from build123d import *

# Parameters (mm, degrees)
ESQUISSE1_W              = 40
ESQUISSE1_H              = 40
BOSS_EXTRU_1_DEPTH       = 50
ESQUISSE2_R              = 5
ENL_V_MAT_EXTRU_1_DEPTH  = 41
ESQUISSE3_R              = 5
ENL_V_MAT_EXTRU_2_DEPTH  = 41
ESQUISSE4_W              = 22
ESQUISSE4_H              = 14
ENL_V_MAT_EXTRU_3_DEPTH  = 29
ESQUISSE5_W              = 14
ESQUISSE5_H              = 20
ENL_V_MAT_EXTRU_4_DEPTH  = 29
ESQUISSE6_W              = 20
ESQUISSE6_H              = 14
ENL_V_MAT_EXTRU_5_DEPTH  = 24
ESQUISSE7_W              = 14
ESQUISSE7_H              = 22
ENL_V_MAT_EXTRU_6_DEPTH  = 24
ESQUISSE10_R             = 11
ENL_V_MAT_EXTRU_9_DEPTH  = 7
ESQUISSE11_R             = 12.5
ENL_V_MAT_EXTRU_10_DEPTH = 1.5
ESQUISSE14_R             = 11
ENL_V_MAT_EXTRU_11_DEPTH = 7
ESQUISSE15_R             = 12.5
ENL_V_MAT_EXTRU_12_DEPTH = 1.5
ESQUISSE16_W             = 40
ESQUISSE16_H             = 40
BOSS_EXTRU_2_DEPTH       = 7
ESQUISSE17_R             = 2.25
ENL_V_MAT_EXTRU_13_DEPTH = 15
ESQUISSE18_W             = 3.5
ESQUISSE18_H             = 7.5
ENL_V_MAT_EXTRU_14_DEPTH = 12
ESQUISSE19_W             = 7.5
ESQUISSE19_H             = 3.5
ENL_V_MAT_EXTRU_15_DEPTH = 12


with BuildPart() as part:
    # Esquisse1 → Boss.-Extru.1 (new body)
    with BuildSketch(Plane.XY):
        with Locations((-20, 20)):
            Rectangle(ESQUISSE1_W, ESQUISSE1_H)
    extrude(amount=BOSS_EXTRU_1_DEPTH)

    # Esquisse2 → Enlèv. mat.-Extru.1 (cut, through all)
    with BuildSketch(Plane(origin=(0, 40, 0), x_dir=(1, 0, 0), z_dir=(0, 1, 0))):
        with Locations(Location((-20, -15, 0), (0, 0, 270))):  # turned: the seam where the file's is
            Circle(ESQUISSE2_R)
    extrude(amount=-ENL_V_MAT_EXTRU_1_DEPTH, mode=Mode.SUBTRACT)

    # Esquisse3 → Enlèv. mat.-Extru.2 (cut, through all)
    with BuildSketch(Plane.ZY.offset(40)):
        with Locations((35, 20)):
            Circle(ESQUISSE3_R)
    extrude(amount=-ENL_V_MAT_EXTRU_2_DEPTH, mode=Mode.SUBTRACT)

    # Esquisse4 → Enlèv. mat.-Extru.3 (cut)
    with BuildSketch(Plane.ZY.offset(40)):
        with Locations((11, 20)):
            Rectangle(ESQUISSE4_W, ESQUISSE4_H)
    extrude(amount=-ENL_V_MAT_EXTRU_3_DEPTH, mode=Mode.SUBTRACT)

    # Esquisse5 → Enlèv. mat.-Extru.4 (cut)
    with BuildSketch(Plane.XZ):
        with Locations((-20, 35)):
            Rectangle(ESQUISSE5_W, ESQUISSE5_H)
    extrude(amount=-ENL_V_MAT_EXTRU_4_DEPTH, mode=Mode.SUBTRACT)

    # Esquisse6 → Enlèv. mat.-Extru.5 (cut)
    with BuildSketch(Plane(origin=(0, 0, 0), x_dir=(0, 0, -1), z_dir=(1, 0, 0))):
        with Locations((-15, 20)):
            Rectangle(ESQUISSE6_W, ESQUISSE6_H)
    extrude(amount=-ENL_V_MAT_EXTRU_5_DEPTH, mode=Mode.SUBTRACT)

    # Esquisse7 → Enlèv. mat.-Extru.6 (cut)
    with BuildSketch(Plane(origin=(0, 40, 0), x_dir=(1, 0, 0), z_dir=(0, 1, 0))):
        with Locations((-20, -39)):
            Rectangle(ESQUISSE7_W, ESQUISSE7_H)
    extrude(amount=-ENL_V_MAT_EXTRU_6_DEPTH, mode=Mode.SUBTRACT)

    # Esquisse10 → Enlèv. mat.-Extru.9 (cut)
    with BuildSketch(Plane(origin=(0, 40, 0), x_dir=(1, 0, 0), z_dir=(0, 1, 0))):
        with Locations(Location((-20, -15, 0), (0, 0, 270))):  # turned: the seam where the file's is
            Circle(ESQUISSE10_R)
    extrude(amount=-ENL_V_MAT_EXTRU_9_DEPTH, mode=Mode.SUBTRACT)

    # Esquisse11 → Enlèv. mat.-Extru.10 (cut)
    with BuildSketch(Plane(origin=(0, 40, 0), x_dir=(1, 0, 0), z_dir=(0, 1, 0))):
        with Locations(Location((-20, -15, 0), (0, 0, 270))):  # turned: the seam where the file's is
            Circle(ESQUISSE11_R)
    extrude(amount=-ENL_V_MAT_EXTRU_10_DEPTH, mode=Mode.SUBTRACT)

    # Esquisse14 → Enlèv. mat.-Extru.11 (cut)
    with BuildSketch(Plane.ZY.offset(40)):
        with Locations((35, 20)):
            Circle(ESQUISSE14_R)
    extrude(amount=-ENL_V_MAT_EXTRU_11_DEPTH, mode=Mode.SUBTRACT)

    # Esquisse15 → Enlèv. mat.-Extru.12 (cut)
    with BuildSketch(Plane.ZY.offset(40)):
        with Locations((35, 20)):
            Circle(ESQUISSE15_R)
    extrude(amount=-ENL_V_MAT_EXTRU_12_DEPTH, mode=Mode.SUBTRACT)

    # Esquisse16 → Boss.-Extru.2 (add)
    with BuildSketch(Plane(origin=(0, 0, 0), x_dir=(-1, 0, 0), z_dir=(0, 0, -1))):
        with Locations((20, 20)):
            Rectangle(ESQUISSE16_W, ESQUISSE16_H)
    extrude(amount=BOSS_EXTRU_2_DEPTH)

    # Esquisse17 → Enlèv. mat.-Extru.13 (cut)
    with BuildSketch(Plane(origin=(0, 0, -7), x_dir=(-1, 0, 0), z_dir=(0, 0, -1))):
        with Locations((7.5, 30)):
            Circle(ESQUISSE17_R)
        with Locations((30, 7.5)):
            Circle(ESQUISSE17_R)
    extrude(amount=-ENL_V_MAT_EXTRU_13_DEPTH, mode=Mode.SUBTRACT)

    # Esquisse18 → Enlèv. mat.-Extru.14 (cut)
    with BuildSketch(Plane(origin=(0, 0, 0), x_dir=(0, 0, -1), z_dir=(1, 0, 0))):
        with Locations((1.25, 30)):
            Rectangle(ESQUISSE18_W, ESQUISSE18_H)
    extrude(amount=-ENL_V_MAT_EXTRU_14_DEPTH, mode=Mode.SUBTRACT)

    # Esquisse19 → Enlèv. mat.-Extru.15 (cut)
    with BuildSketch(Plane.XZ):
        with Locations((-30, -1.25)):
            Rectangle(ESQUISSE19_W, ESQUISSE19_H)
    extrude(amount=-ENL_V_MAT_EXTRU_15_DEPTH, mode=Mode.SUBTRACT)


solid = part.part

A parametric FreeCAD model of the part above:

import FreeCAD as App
import Part
import Sketcher

V = App.Vector
Q = App.Units.Quantity

doc = App.newDocument("Part")
body = doc.addObject("PartDesign::Body", "Body")

# Sketch on XY plane
sketch1 = doc.addObject("Sketcher::SketchObject", "Sketch")
body.addObject(sketch1)
sketch1.AttachmentSupport = (doc.XY_Plane, [""])
sketch1.MapMode = "FlatFace"
sketch1.addGeometry(Part.LineSegment(V(-40, 40, 0), V(-40, 0, 0)), False)
sketch1.addGeometry(Part.LineSegment(V(-40, 0, 0), V(0, 0, 0)), False)
sketch1.addGeometry(Part.LineSegment(V(0, 0, 0), V(0, 40, 0)), False)
sketch1.addGeometry(Part.LineSegment(V(0, 40, 0), V(-40, 40, 0)), False)
sketch1.addConstraint(Sketcher.Constraint("Coincident", 0, 2, 1, 1))
sketch1.addConstraint(Sketcher.Constraint("Coincident", 1, 2, 2, 1))
sketch1.addConstraint(Sketcher.Constraint("Coincident", 2, 2, 3, 1))
sketch1.addConstraint(Sketcher.Constraint("Coincident", 3, 2, 0, 1))
sketch1.addConstraint(Sketcher.Constraint("Vertical", 0))
sketch1.addConstraint(Sketcher.Constraint("Horizontal", 1))
sketch1.addConstraint(Sketcher.Constraint("Vertical", 2))
sketch1.addConstraint(Sketcher.Constraint("Horizontal", 3))
sketch1.addConstraint(Sketcher.Constraint("Coincident", 1, 2, -1, 1))
sketch1.addConstraint(Sketcher.Constraint("Equal", 3, 0))
sketch1.addConstraint(Sketcher.Constraint("DistanceX", 1, 1, 1, 2, Q("40 mm")))
pad1 = doc.addObject("PartDesign::Pad", "Pad")
body.addObject(pad1)
pad1.Profile = sketch1
pad1.Length = 50

# Sketch on XZ plane
sketch2 = doc.addObject("Sketcher::SketchObject", "Sketch001")
body.addObject(sketch2)
sketch2.AttachmentSupport = (doc.XZ_Plane, [""])
sketch2.MapMode = "FlatFace"
sketch2.AttachmentOffset = App.Placement(V(0, 0, -40), App.Rotation())
sketch2.addGeometry(Part.Circle(V(-20, 15, 0), V(0, 0, 1), 5), False)
sketch2.addConstraint(Sketcher.Constraint("Diameter", 0, Q("10 mm")))
sketch2.addConstraint(Sketcher.Constraint("DistanceX", 0, 3, -1, 1, Q("20 mm")))
sketch2.addConstraint(Sketcher.Constraint("DistanceY", -1, 1, 0, 3, Q("15 mm")))
pocket1 = doc.addObject("PartDesign::Pocket", "Pocket")
body.addObject(pocket1)
pocket1.Profile = sketch2
pocket1.Type = "ThroughAll"
pocket1.Reversed = True

# Sketch on YZ plane
sketch3 = doc.addObject("Sketcher::SketchObject", "Sketch002")
body.addObject(sketch3)
sketch3.AttachmentSupport = (doc.YZ_Plane, [""])
sketch3.MapMode = "FlatFace"
sketch3.AttachmentOffset = App.Placement(V(0, 0, -40), App.Rotation())
sketch3.addGeometry(Part.Circle(V(20, 35, 0), V(0, 0, 1), 5), False)
sketch3.addConstraint(Sketcher.Constraint("Diameter", 0, Q("10 mm")))
sketch3.addConstraint(Sketcher.Constraint("DistanceX", -1, 1, 0, 3, Q("20 mm")))
sketch3.addConstraint(Sketcher.Constraint("DistanceY", -1, 1, 0, 3, Q("35 mm")))
pocket2 = doc.addObject("PartDesign::Pocket", "Pocket001")
body.addObject(pocket2)
pocket2.Profile = sketch3
pocket2.Type = "ThroughAll"
pocket2.Reversed = True

# Sketch on YZ plane
sketch4 = doc.addObject("Sketcher::SketchObject", "Sketch003")
body.addObject(sketch4)
sketch4.AttachmentSupport = (doc.YZ_Plane, [""])
sketch4.MapMode = "FlatFace"
sketch4.AttachmentOffset = App.Placement(V(0, 0, -40), App.Rotation())
sketch4.addGeometry(Part.LineSegment(V(27, 0, 0), V(13, 0, 0)), False)
sketch4.addGeometry(Part.LineSegment(V(13, 0, 0), V(13, 22, 0)), False)
sketch4.addGeometry(Part.LineSegment(V(13, 22, 0), V(27, 22, 0)), False)
sketch4.addGeometry(Part.LineSegment(V(27, 22, 0), V(27, 0, 0)), False)
sketch4.addConstraint(Sketcher.Constraint("Coincident", 0, 2, 1, 1))
sketch4.addConstraint(Sketcher.Constraint("Coincident", 1, 2, 2, 1))
sketch4.addConstraint(Sketcher.Constraint("Coincident", 2, 2, 3, 1))
sketch4.addConstraint(Sketcher.Constraint("Coincident", 3, 2, 0, 1))
sketch4.addConstraint(Sketcher.Constraint("Horizontal", 0))
sketch4.addConstraint(Sketcher.Constraint("Vertical", 1))
sketch4.addConstraint(Sketcher.Constraint("Horizontal", 2))
sketch4.addConstraint(Sketcher.Constraint("Vertical", 3))
sketch4.addConstraint(Sketcher.Constraint("PointOnObject", 0, 2, -1))
sketch4.addConstraint(Sketcher.Constraint("DistanceX", 0, 2, 0, 1, Q("14 mm")))
sketch4.addConstraint(Sketcher.Constraint("DistanceY", 1, 1, 1, 2, Q("22 mm")))
sketch4.addConstraint(Sketcher.Constraint("DistanceX", -1, 1, 0, 2, Q("13 mm")))
pocket3 = doc.addObject("PartDesign::Pocket", "Pocket002")
body.addObject(pocket3)
pocket3.Profile = sketch4
pocket3.Length = 29
pocket3.Reversed = True

# Sketch on XZ plane
sketch5 = doc.addObject("Sketcher::SketchObject", "Sketch004")
body.addObject(sketch5)
sketch5.AttachmentSupport = (doc.XZ_Plane, [""])
sketch5.MapMode = "FlatFace"
sketch5.addGeometry(Part.LineSegment(V(-27, 45, 0), V(-27, 25, 0)), False)
sketch5.addGeometry(Part.LineSegment(V(-27, 25, 0), V(-13, 25, 0)), False)
sketch5.addGeometry(Part.LineSegment(V(-13, 25, 0), V(-13, 45, 0)), False)
sketch5.addGeometry(Part.LineSegment(V(-13, 45, 0), V(-27, 45, 0)), False)
sketch5.addConstraint(Sketcher.Constraint("Coincident", 0, 2, 1, 1))
sketch5.addConstraint(Sketcher.Constraint("Coincident", 1, 2, 2, 1))
sketch5.addConstraint(Sketcher.Constraint("Coincident", 2, 2, 3, 1))
sketch5.addConstraint(Sketcher.Constraint("Coincident", 3, 2, 0, 1))
sketch5.addConstraint(Sketcher.Constraint("Vertical", 0))
sketch5.addConstraint(Sketcher.Constraint("Horizontal", 1))
sketch5.addConstraint(Sketcher.Constraint("Vertical", 2))
sketch5.addConstraint(Sketcher.Constraint("Horizontal", 3))
sketch5.addConstraint(Sketcher.Constraint("DistanceX", 1, 1, 1, 2, Q("14 mm")))
sketch5.addConstraint(Sketcher.Constraint("DistanceY", 0, 2, 0, 1, Q("20 mm")))
sketch5.addConstraint(Sketcher.Constraint("DistanceX", 0, 2, -1, 1, Q("27 mm")))
sketch5.addConstraint(Sketcher.Constraint("DistanceY", -1, 1, 0, 2, Q("25 mm")))
pocket4 = doc.addObject("PartDesign::Pocket", "Pocket003")
body.addObject(pocket4)
pocket4.Profile = sketch5
pocket4.Length = 29

# Sketch on YZ plane
sketch6 = doc.addObject("Sketcher::SketchObject", "Sketch005")
body.addObject(sketch6)
sketch6.AttachmentSupport = (doc.YZ_Plane, [""])
sketch6.MapMode = "FlatFace"
sketch6.addGeometry(Part.LineSegment(V(27, 25, 0), V(13, 25, 0)), False)
sketch6.addGeometry(Part.LineSegment(V(13, 25, 0), V(13, 5, 0)), False)
sketch6.addGeometry(Part.LineSegment(V(13, 5, 0), V(27, 5, 0)), False)
sketch6.addGeometry(Part.LineSegment(V(27, 5, 0), V(27, 25, 0)), False)
sketch6.addConstraint(Sketcher.Constraint("Coincident", 0, 2, 1, 1))
sketch6.addConstraint(Sketcher.Constraint("Coincident", 1, 2, 2, 1))
sketch6.addConstraint(Sketcher.Constraint("Coincident", 2, 2, 3, 1))
sketch6.addConstraint(Sketcher.Constraint("Coincident", 3, 2, 0, 1))
sketch6.addConstraint(Sketcher.Constraint("Horizontal", 0))
sketch6.addConstraint(Sketcher.Constraint("Vertical", 1))
sketch6.addConstraint(Sketcher.Constraint("Horizontal", 2))
sketch6.addConstraint(Sketcher.Constraint("Vertical", 3))
sketch6.addConstraint(Sketcher.Constraint("DistanceX", 0, 2, 0, 1, Q("14 mm")))
sketch6.addConstraint(Sketcher.Constraint("DistanceY", 1, 2, 1, 1, Q("20 mm")))
sketch6.addConstraint(Sketcher.Constraint("DistanceX", -1, 1, 0, 2, Q("13 mm")))
sketch6.addConstraint(Sketcher.Constraint("DistanceY", -1, 1, 0, 2, Q("25 mm")))
pocket5 = doc.addObject("PartDesign::Pocket", "Pocket004")
body.addObject(pocket5)
pocket5.Profile = sketch6
pocket5.Length = 24

# Sketch on XZ plane
sketch7 = doc.addObject("Sketcher::SketchObject", "Sketch006")
body.addObject(sketch7)
sketch7.AttachmentSupport = (doc.XZ_Plane, [""])
sketch7.MapMode = "FlatFace"
sketch7.AttachmentOffset = App.Placement(V(0, 0, -40), App.Rotation())
sketch7.addGeometry(Part.LineSegment(V(-27, 28, 0), V(-27, 50, 0)), False)
sketch7.addGeometry(Part.LineSegment(V(-27, 50, 0), V(-13, 50, 0)), False)
sketch7.addGeometry(Part.LineSegment(V(-13, 50, 0), V(-13, 28, 0)), False)
sketch7.addGeometry(Part.LineSegment(V(-13, 28, 0), V(-27, 28, 0)), False)
sketch7.addConstraint(Sketcher.Constraint("Coincident", 0, 2, 1, 1))
sketch7.addConstraint(Sketcher.Constraint("Coincident", 1, 2, 2, 1))
sketch7.addConstraint(Sketcher.Constraint("Coincident", 2, 2, 3, 1))
sketch7.addConstraint(Sketcher.Constraint("Coincident", 3, 2, 0, 1))
sketch7.addConstraint(Sketcher.Constraint("Vertical", 0))
sketch7.addConstraint(Sketcher.Constraint("Horizontal", 1))
sketch7.addConstraint(Sketcher.Constraint("Vertical", 2))
sketch7.addConstraint(Sketcher.Constraint("Horizontal", 3))
sketch7.addConstraint(Sketcher.Constraint("DistanceX", 1, 1, 1, 2, Q("14 mm")))
sketch7.addConstraint(Sketcher.Constraint("DistanceY", 0, 1, 0, 2, Q("22 mm")))
sketch7.addConstraint(Sketcher.Constraint("DistanceX", 0, 2, -1, 1, Q("27 mm")))
sketch7.addConstraint(Sketcher.Constraint("DistanceY", -1, 1, 0, 2, Q("50 mm")))
pocket6 = doc.addObject("PartDesign::Pocket", "Pocket005")
body.addObject(pocket6)
pocket6.Profile = sketch7
pocket6.Length = 24
pocket6.Reversed = True

# Sketch on XZ plane
sketch8 = doc.addObject("Sketcher::SketchObject", "Sketch007")
body.addObject(sketch8)
sketch8.AttachmentSupport = (doc.XZ_Plane, [""])
sketch8.MapMode = "FlatFace"
sketch8.AttachmentOffset = App.Placement(V(0, 0, -40), App.Rotation())
sketch8.addGeometry(Part.Circle(V(-20, 15, 0), V(0, 0, 1), 11), False)
sketch8.addConstraint(Sketcher.Constraint("Diameter", 0, Q("22 mm")))
sketch8.addConstraint(Sketcher.Constraint("DistanceX", 0, 3, -1, 1, Q("20 mm")))
sketch8.addConstraint(Sketcher.Constraint("DistanceY", -1, 1, 0, 3, Q("15 mm")))
pocket7 = doc.addObject("PartDesign::Pocket", "Pocket006")
body.addObject(pocket7)
pocket7.Profile = sketch8
pocket7.Length = 7
pocket7.Reversed = True

# Sketch on XZ plane
sketch9 = doc.addObject("Sketcher::SketchObject", "Sketch008")
body.addObject(sketch9)
sketch9.AttachmentSupport = (doc.XZ_Plane, [""])
sketch9.MapMode = "FlatFace"
sketch9.AttachmentOffset = App.Placement(V(0, 0, -40), App.Rotation())
sketch9.addGeometry(Part.Circle(V(-20, 15, 0), V(0, 0, 1), 12), False)
sketch9.addConstraint(Sketcher.Constraint("Diameter", 0, Q("25 mm")))
sketch9.addConstraint(Sketcher.Constraint("DistanceX", 0, 3, -1, 1, Q("20 mm")))
sketch9.addConstraint(Sketcher.Constraint("DistanceY", -1, 1, 0, 3, Q("15 mm")))
pocket8 = doc.addObject("PartDesign::Pocket", "Pocket007")
body.addObject(pocket8)
pocket8.Profile = sketch9
pocket8.Length = 1.5
pocket8.Reversed = True

# Sketch on YZ plane
sketch10 = doc.addObject("Sketcher::SketchObject", "Sketch009")
body.addObject(sketch10)
sketch10.AttachmentSupport = (doc.YZ_Plane, [""])
sketch10.MapMode = "FlatFace"
sketch10.AttachmentOffset = App.Placement(V(0, 0, -40), App.Rotation())
sketch10.addGeometry(Part.Circle(V(20, 35, 0), V(0, 0, 1), 11), False)
sketch10.addConstraint(Sketcher.Constraint("Diameter", 0, Q("22 mm")))
sketch10.addConstraint(Sketcher.Constraint("DistanceX", -1, 1, 0, 3, Q("20 mm")))
sketch10.addConstraint(Sketcher.Constraint("DistanceY", -1, 1, 0, 3, Q("35 mm")))
pocket9 = doc.addObject("PartDesign::Pocket", "Pocket008")
body.addObject(pocket9)
pocket9.Profile = sketch10
pocket9.Length = 7
pocket9.Reversed = True

# Sketch on YZ plane
sketch11 = doc.addObject("Sketcher::SketchObject", "Sketch010")
body.addObject(sketch11)
sketch11.AttachmentSupport = (doc.YZ_Plane, [""])
sketch11.MapMode = "FlatFace"
sketch11.AttachmentOffset = App.Placement(V(0, 0, -40), App.Rotation())
sketch11.addGeometry(Part.Circle(V(20, 35, 0), V(0, 0, 1), 12), False)
sketch11.addConstraint(Sketcher.Constraint("Diameter", 0, Q("25 mm")))
sketch11.addConstraint(Sketcher.Constraint("DistanceX", -1, 1, 0, 3, Q("20 mm")))
sketch11.addConstraint(Sketcher.Constraint("DistanceY", -1, 1, 0, 3, Q("35 mm")))
pocket10 = doc.addObject("PartDesign::Pocket", "Pocket009")
body.addObject(pocket10)
pocket10.Profile = sketch11
pocket10.Length = 1.5
pocket10.Reversed = True

# Sketch on XY plane
sketch12 = doc.addObject("Sketcher::SketchObject", "Sketch011")
body.addObject(sketch12)
sketch12.AttachmentSupport = (doc.XY_Plane, [""])
sketch12.MapMode = "FlatFace"
sketch12.addGeometry(Part.LineSegment(V(0, 40, 0), V(0, 0, 0)), False)
sketch12.addGeometry(Part.LineSegment(V(0, 0, 0), V(-40, 0, 0)), False)
sketch12.addGeometry(Part.LineSegment(V(-40, 0, 0), V(-40, 40, 0)), False)
sketch12.addGeometry(Part.LineSegment(V(-40, 40, 0), V(0, 40, 0)), False)
sketch12.addConstraint(Sketcher.Constraint("Coincident", 0, 2, 1, 1))
sketch12.addConstraint(Sketcher.Constraint("Coincident", 1, 2, 2, 1))
sketch12.addConstraint(Sketcher.Constraint("Coincident", 2, 2, 3, 1))
sketch12.addConstraint(Sketcher.Constraint("Coincident", 3, 2, 0, 1))
sketch12.addConstraint(Sketcher.Constraint("Vertical", 0))
sketch12.addConstraint(Sketcher.Constraint("Horizontal", 1))
sketch12.addConstraint(Sketcher.Constraint("Vertical", 2))
sketch12.addConstraint(Sketcher.Constraint("Horizontal", 3))
sketch12.addConstraint(Sketcher.Constraint("Coincident", 0, 2, -1, 1))
sketch12.addConstraint(Sketcher.Constraint("Equal", 3, 0))
sketch12.addConstraint(Sketcher.Constraint("DistanceX", 1, 2, 1, 1, Q("40 mm")))
pad2 = doc.addObject("PartDesign::Pad", "Pad001")
body.addObject(pad2)
pad2.Profile = sketch12
pad2.Length = 7
pad2.Reversed = True

# Sketch on XY plane
sketch13 = doc.addObject("Sketcher::SketchObject", "Sketch012")
body.addObject(sketch13)
sketch13.AttachmentSupport = (doc.XY_Plane, [""])
sketch13.MapMode = "FlatFace"
sketch13.AttachmentOffset = App.Placement(V(0, 0, -7), App.Rotation())
sketch13.addGeometry(Part.Circle(V(-7.5, 30, 0), V(0, 0, 1), 2.2), False)
sketch13.addGeometry(Part.Circle(V(-30, 7.5, 0), V(0, 0, 1), 2.2), False)
sketch13.addConstraint(Sketcher.Constraint("Equal", 0, 1))
sketch13.addConstraint(Sketcher.Constraint("Diameter", 0, Q("4.5 mm")))
sketch13.addConstraint(Sketcher.Constraint("DistanceY", -1, 1, 0, 3, Q("30 mm")))
sketch13.addConstraint(Sketcher.Constraint("DistanceX", 1, 3, -1, 1, Q("30 mm")))
sketch13.addConstraint(Sketcher.Constraint("DistanceX", 0, 3, -1, 1, Q("7.5 mm")))
sketch13.addConstraint(Sketcher.Constraint("DistanceY", -1, 1, 1, 3, Q("7.5 mm")))
pocket11 = doc.addObject("PartDesign::Pocket", "Pocket010")
body.addObject(pocket11)
pocket11.Profile = sketch13
pocket11.Length = 15
pocket11.Reversed = True

# Sketch on YZ plane
sketch14 = doc.addObject("Sketcher::SketchObject", "Sketch013")
body.addObject(sketch14)
sketch14.AttachmentSupport = (doc.YZ_Plane, [""])
sketch14.MapMode = "FlatFace"
sketch14.addGeometry(Part.LineSegment(V(33.8, 0.5, 0), V(26.2, 0.5, 0)), False)
sketch14.addGeometry(Part.LineSegment(V(26.2, 0.5, 0), V(26.2, -3, 0)), False)
sketch14.addGeometry(Part.LineSegment(V(26.2, -3, 0), V(33.8, -3, 0)), False)
sketch14.addGeometry(Part.LineSegment(V(33.8, -3, 0), V(33.8, 0.5, 0)), False)
sketch14.addConstraint(Sketcher.Constraint("Coincident", 0, 2, 1, 1))
sketch14.addConstraint(Sketcher.Constraint("Coincident", 1, 2, 2, 1))
sketch14.addConstraint(Sketcher.Constraint("Coincident", 2, 2, 3, 1))
sketch14.addConstraint(Sketcher.Constraint("Coincident", 3, 2, 0, 1))
sketch14.addConstraint(Sketcher.Constraint("Horizontal", 0))
sketch14.addConstraint(Sketcher.Constraint("Vertical", 1))
sketch14.addConstraint(Sketcher.Constraint("Horizontal", 2))
sketch14.addConstraint(Sketcher.Constraint("Vertical", 3))
sketch14.addConstraint(Sketcher.Constraint("DistanceX", 0, 2, 0, 1, Q("7.5 mm")))
sketch14.addConstraint(Sketcher.Constraint("DistanceY", 1, 2, 1, 1, Q("3.5 mm")))
sketch14.addConstraint(Sketcher.Constraint("DistanceY", 1, 2, -1, 1, Q("3 mm")))
sketch14.addConstraint(Sketcher.Constraint("DistanceX", -1, 1, 0, 2, Q("26.25 mm")))
pocket12 = doc.addObject("PartDesign::Pocket", "Pocket011")
body.addObject(pocket12)
pocket12.Profile = sketch14
pocket12.Length = 12

# Sketch on XZ plane
sketch15 = doc.addObject("Sketcher::SketchObject", "Sketch014")
body.addObject(sketch15)
sketch15.AttachmentSupport = (doc.XZ_Plane, [""])
sketch15.MapMode = "FlatFace"
sketch15.addGeometry(Part.LineSegment(V(-33.8, 0.5, 0), V(-33.8, -3, 0)), False)
sketch15.addGeometry(Part.LineSegment(V(-33.8, -3, 0), V(-26.2, -3, 0)), False)
sketch15.addGeometry(Part.LineSegment(V(-26.2, -3, 0), V(-26.2, 0.5, 0)), False)
sketch15.addGeometry(Part.LineSegment(V(-26.2, 0.5, 0), V(-33.8, 0.5, 0)), False)
sketch15.addConstraint(Sketcher.Constraint("Coincident", 0, 2, 1, 1))
sketch15.addConstraint(Sketcher.Constraint("Coincident", 1, 2, 2, 1))
sketch15.addConstraint(Sketcher.Constraint("Coincident", 2, 2, 3, 1))
sketch15.addConstraint(Sketcher.Constraint("Coincident", 3, 2, 0, 1))
sketch15.addConstraint(Sketcher.Constraint("Vertical", 0))
sketch15.addConstraint(Sketcher.Constraint("Horizontal", 1))
sketch15.addConstraint(Sketcher.Constraint("Vertical", 2))
sketch15.addConstraint(Sketcher.Constraint("Horizontal", 3))
sketch15.addConstraint(Sketcher.Constraint("DistanceX", 1, 1, 1, 2, Q("7.5 mm")))
sketch15.addConstraint(Sketcher.Constraint("DistanceY", 0, 2, 0, 1, Q("3.5 mm")))
sketch15.addConstraint(Sketcher.Constraint("DistanceY", 0, 2, -1, 1, Q("3 mm")))
sketch15.addConstraint(Sketcher.Constraint("DistanceX", 0, 2, -1, 1, Q("33.75 mm")))
pocket13 = doc.addObject("PartDesign::Pocket", "Pocket012")
body.addObject(pocket13)
pocket13.Profile = sketch15
pocket13.Length = 12

doc.recompute()
